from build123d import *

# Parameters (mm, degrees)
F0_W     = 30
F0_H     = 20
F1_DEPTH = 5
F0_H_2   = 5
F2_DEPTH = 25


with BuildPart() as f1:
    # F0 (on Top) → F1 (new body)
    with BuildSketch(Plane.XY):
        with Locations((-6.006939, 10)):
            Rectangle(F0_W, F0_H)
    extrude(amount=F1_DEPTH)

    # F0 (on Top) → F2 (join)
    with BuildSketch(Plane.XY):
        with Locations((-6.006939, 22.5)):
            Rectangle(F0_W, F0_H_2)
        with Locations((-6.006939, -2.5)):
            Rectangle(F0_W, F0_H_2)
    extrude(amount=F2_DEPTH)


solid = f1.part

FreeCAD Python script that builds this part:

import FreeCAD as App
import Part
import Sketcher

V = App.Vector

doc = App.newDocument("Part")
body = doc.addObject("PartDesign::Body", "Body")

# Sketch on XY plane
sketch1 = body.newObject("Sketcher::SketchObject", "Sketch")
sketch1.AttachmentSupport = (doc.getObject("XY_Plane"), [""])
sketch1.MapMode = "FlatFace"
sketch1.addGeometry([
    Part.LineSegment(V(-21, 20, 0), V(-21, 0, 0)),
    Part.LineSegment(V(-21, 0, 0), V(9, 0, 0)),
    Part.LineSegment(V(9, 0, 0), V(9, 20, 0)),
    Part.LineSegment(V(9, 20, 0), V(-21, 20, 0)),
], False)
sketch1.addConstraint([
    Sketcher.Constraint("Coincident", 0, 2, 1, 1),
    Sketcher.Constraint("Coincident", 1, 2, 2, 1),
    Sketcher.Constraint("Coincident", 2, 2, 3, 1),
    Sketcher.Constraint("Coincident", 3, 2, 0, 1),
    Sketcher.Constraint("Vertical", 0),
    Sketcher.Constraint("Horizontal", 1),
    Sketcher.Constraint("Vertical", 2),
    Sketcher.Constraint("Horizontal", 3),
    Sketcher.Constraint("PointOnObject", 0, 2, -1),
    Sketcher.Constraint("DistanceX", 1, 1, 1, 2, 30.0),
    Sketcher.Constraint("DistanceY", 0, 2, 0, 1, 20.0),
    Sketcher.Constraint("DistanceX", 0, 2, -1, 1, 21.006939),
])
pad1 = body.newObject("PartDesign::Pad", "Pad")
pad1.Profile = sketch1
pad1.Length = 5

# Sketch on XY plane
sketch2 = body.newObject("Sketcher::SketchObject", "Sketch001")
sketch2.AttachmentSupport = (doc.getObject("XY_Plane"), [""])
sketch2.MapMode = "FlatFace"
sketch2.addGeometry([
    Part.LineSegment(V(-21, 25, 0), V(-21, 20, 0)),  # 0
    Part.LineSegment(V(-21, 20, 0), V(9, 20, 0)),  # 1
    Part.LineSegment(V(9, 20, 0), V(9, 25, 0)),  # 2
    Part.LineSegment(V(9, 25, 0), V(-21, 25, 0)),  # 3
    Part.LineSegment(V(-21, 0, 0), V(-21, -5, 0)),  # 4
    Part.LineSegment(V(-21, -5, 0), V(9, -5, 0)),  # 5
    Part.LineSegment(V(9, -5, 0), V(9, 0, 0)),  # 6
    Part.LineSegment(V(9, 0, 0), V(-21, 0, 0)),  # 7
], False)
sketch2.addConstraint([
    Sketcher.Constraint("Coincident", 0, 2, 1, 1),
    Sketcher.Constraint("Coincident", 1, 2, 2, 1),
    Sketcher.Constraint("Coincident", 2, 2, 3, 1),
    Sketcher.Constraint("Coincident", 3, 2, 0, 1),
    Sketcher.Constraint("Coincident", 4, 2, 5, 1),
    Sketcher.Constraint("Coincident", 5, 2, 6, 1),
    Sketcher.Constraint("Coincident", 6, 2, 7, 1),
    Sketcher.Constraint("Coincident", 7, 2, 4, 1),
    Sketcher.Constraint("Vertical", 0),
    Sketcher.Constraint("Horizontal", 1),
    Sketcher.Constraint("Vertical", 2),
    Sketcher.Constraint("Horizontal", 3),
    Sketcher.Constraint("Vertical", 4),
    Sketcher.Constraint("Horizontal", 5),
    Sketcher.Constraint("Vertical", 6),
    Sketcher.Constraint("Horizontal", 7),
    Sketcher.Constraint("PointOnObject", 6, 2, -1),
    Sketcher.Constraint("Vertical", 3, 2, 4, 2),
    Sketcher.Constraint("Vertical", 2, 2, 5, 2),
    Sketcher.Constraint("Equal", 2, 4),
    Sketcher.Constraint("DistanceX", 1, 1, 1, 2, 30.0),
    Sketcher.Constraint("DistanceY", 0, 2, 0, 1, 5.0),
    Sketcher.Constraint("DistanceY", -1, 1, 0, 2, 20.0),
    Sketcher.Constraint("DistanceX", 0, 2, -1, 1, 21.006939),
])
pad2 = body.newObject("PartDesign::Pad", "Pad001")
pad2.Profile = sketch2
pad2.Length = 25

doc.recompute()
